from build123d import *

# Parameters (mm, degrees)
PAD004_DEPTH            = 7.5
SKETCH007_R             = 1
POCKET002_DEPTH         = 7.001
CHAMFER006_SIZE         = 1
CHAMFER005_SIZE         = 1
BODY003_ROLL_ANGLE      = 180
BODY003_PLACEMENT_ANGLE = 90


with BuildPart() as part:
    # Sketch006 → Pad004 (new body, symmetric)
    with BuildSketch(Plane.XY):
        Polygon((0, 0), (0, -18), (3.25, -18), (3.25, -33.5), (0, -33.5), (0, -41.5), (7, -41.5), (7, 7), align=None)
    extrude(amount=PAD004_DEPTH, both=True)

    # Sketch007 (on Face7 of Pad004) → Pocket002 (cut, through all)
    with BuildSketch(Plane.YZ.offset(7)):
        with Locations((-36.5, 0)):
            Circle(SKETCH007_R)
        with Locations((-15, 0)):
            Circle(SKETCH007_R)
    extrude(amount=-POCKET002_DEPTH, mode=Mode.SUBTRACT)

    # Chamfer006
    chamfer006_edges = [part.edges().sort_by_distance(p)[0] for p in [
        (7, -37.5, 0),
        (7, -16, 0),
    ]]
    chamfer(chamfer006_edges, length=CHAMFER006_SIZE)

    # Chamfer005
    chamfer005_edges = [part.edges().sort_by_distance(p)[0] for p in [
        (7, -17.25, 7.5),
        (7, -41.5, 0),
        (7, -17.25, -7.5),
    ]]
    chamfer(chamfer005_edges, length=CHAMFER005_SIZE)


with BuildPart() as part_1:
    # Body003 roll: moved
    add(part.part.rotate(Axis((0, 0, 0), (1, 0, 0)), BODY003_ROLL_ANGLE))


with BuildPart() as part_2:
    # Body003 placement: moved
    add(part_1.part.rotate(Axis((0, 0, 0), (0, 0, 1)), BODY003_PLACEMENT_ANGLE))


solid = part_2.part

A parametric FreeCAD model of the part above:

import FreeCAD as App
import Part
import Sketcher
Q = App.Units.Quantity


def edges_at(feature, points):
    """Names of the edges that pass closest to the given points."""
    edges = feature.Shape.Edges
    near = lambda p: min(range(len(edges)), key=lambda i: edges[i].distToShape(Part.Vertex(*p))[0])
    return sorted({f"Edge{near(p) + 1}" for p in points})


def add_polygon(sketch, points):
    """Adds a closed chain of lines whose ends are joined by coincident constraints."""
    first, n = sketch.GeometryCount, len(points)
    for a, b in zip(points, points[1:] + points[:1]):
        sketch.addGeometry(Part.LineSegment(App.Vector(*a, 0), App.Vector(*b, 0)), False)
    for i in range(n):
        sketch.addConstraint(Sketcher.Constraint("Coincident", first + i, 2, first + (i + 1) % n, 1))

doc = App.newDocument("Part")
body = doc.addObject("PartDesign::Body", "Body")

# Sketch on XY plane
sketch1 = body.newObject("Sketcher::SketchObject", "Sketch")
sketch1.AttachmentSupport = (doc.getObject("XY_Plane"), [""])
sketch1.MapMode = "FlatFace"
add_polygon(sketch1, [(0, 0), (0, -18), (3.2, -18), (3.2, -33.5), (0, -33.5), (0, -41.5), (7, -41.5), (7, 7)])  # lines 0-7
sketch1.addConstraint([
    Sketcher.Constraint("Vertical", 0),
    Sketcher.Constraint("Horizontal", 1),
    Sketcher.Constraint("Vertical", 2),
    Sketcher.Constraint("Horizontal", 3),
    Sketcher.Constraint("Vertical", 4),
    Sketcher.Constraint("Horizontal", 5),
    Sketcher.Constraint("Vertical", 6),
    Sketcher.Constraint("Coincident", 7, 2, -1, 1),
    Sketcher.Constraint("PointOnObject", 3, 2, -2),
    Sketcher.Constraint("DistanceX", 5, 1, 5, 2, 7.0),
    Sketcher.Constraint("DistanceY", 0, 2, 0, 1, 18.0),
    Sketcher.Constraint("DistanceY", 4, 2, 4, 1, 8.0),
    Sketcher.Constraint("Angle", 7, Q("-135 deg")),
    Sketcher.Constraint("DistanceY", 2, 2, 2, 1, 15.5),
    Sketcher.Constraint("DistanceX", 1, 1, 1, 2, 3.25),
])
pad1 = body.newObject("PartDesign::Pad", "Pad")
pad1.Profile = sketch1
pad1.Length = 15
pad1.Midplane = True

# Sketch on YZ plane
sketch2 = body.newObject("Sketcher::SketchObject", "Sketch001")
sketch2.AttachmentSupport = (doc.getObject("YZ_Plane"), [""])
sketch2.MapMode = "FlatFace"
sketch2.AttachmentOffset = App.Placement(App.Vector(0, 0, 7), App.Rotation())
sketch2.addGeometry([
    Part.Circle(App.Vector(-36.5, 0, 0), App.Vector(0, 0, 1), 1),
    Part.Circle(App.Vector(-15, 0, 0), App.Vector(0, 0, 1), 1),
], False)
sketch2.addConstraint([
    Sketcher.Constraint("Equal", 0, 1),
    Sketcher.Constraint("PointOnObject", 0, 3, -1),
    Sketcher.Constraint("PointOnObject", 1, 3, -1),
    Sketcher.Constraint("Diameter", 0, 2.0),
    Sketcher.Constraint("DistanceX", 1, 3, -1, 1, 15.0),
    Sketcher.Constraint("DistanceX", 0, 3, -1, 1, 36.5),
])
pocket1 = body.newObject("PartDesign::Pocket", "Pocket")
pocket1.Profile = sketch2
pocket1.Type = "ThroughAll"
doc.recompute()

chamfer = body.newObject("PartDesign::Chamfer", "Chamfer")
chamfer.Base = (pocket1, edges_at(pocket1, [(7, -37.5, 0), (7, -16, 0)]))
chamfer.Size = 1
doc.recompute()

chamfer2 = body.newObject("PartDesign::Chamfer", "Chamfer001")
chamfer2.Base = (chamfer, edges_at(chamfer, [(7, -17.25, 7.5), (7, -41.5, 0), (7, -17.25, -7.5)]))
chamfer2.Size = 1
body2 = doc.addObject("PartDesign::Body", "Body001")
doc.recompute()

body.Placement = App.Placement(App.Vector(0, 0, 0), App.Rotation(App.Vector(1, 0, 0), 180))
boolean = body2.newObject("PartDesign::Boolean", "Boolean")
boolean.Type = "Fuse"
boolean.addObjects([body])
body3 = doc.addObject("PartDesign::Body", "Body002")
doc.recompute()

body2.Placement = App.Placement(App.Vector(0, 0, 0), App.Rotation(App.Vector(0, 0, 1), 90))
boolean2 = body3.newObject("PartDesign::Boolean", "Boolean001")
boolean2.Type = "Fuse"
boolean2.addObjects([body2])

doc.recompute()
